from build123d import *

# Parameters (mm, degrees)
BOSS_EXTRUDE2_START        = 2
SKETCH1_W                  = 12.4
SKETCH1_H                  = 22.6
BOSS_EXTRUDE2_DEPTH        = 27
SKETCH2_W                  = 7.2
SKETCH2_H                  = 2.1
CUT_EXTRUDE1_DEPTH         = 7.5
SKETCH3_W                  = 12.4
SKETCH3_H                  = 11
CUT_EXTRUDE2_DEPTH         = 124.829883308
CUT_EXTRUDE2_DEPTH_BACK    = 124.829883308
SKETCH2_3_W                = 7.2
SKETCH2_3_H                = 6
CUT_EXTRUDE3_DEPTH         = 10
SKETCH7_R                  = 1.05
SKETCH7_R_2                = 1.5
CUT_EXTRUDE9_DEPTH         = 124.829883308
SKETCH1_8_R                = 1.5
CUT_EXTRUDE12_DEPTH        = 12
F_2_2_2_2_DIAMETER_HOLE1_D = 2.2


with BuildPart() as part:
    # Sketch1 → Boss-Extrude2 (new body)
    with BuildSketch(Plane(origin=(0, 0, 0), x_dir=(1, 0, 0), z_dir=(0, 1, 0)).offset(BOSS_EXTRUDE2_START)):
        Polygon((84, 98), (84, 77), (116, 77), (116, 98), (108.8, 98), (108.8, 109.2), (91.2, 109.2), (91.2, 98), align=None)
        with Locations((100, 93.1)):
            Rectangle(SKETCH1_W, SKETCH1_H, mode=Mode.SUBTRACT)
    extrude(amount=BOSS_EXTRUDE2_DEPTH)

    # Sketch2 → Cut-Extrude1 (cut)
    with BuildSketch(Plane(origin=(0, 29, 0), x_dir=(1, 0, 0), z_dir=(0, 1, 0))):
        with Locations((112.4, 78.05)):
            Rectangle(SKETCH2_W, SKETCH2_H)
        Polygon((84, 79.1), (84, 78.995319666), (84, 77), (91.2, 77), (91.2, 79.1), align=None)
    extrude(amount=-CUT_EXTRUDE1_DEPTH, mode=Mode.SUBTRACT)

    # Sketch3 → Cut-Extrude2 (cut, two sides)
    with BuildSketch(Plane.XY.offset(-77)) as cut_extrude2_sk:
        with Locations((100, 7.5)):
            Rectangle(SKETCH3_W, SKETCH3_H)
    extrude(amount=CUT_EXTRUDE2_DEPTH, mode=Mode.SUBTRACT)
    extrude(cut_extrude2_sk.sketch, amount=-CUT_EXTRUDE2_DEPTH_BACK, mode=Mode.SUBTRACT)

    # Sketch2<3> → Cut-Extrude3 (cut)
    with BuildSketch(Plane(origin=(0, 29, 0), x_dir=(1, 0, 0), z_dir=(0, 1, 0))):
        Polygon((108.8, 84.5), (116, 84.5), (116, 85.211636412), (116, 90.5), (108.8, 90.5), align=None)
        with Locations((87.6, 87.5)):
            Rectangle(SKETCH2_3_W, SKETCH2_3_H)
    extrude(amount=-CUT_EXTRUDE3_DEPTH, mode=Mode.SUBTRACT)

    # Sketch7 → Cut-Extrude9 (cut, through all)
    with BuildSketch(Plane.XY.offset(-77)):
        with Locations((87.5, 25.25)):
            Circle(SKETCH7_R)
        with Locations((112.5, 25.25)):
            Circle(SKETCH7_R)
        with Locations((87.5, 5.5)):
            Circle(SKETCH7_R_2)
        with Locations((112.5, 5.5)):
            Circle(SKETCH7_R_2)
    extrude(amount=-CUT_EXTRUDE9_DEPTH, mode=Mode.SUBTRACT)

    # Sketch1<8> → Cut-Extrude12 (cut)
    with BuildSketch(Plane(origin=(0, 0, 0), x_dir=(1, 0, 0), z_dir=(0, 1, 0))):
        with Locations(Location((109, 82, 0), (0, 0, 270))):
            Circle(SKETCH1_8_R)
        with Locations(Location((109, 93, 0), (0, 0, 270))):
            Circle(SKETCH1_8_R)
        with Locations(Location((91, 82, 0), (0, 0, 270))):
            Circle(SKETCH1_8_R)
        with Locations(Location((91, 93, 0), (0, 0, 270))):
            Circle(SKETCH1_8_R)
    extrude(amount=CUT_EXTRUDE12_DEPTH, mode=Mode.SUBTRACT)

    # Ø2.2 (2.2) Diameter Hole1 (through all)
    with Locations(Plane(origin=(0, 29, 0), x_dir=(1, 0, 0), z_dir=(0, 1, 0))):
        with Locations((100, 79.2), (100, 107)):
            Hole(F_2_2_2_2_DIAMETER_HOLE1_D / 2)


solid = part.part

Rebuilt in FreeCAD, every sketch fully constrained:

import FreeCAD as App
import Part
import Sketcher
Q = App.Units.Quantity

doc = App.newDocument("Part")
params = doc.addObject("Spreadsheet::Sheet", "Params")
for row, (alias, value) in enumerate([
    ("sketch1_width", "32 mm"),
    ("sketch1_height", "21 mm"),
    ("sketch1_width2", "7.2 mm"),
    ("sketch1_width3", "12.4 mm"),
    ("sketch1_height2", "11.2 mm"),
    ("pad1_length", "27 mm"),
    ("sketch2_width", "7.2 mm"),
    ("sketch2_height", "2.1 mm"),
    ("pocket1_length", "7.5 mm"),
    ("sketch3_height", "11 mm"),
    ("sketch3_width", "12.4 mm"),
    ("sketch4_height", "6 mm"),
    ("sketch4_width", "7.2 mm"),
    ("pocket3_length", "10 mm"),
    ("sketch5_diameter", "3 mm"),
    ("sketch5_diameter2", "2.1 mm"),
    ("sketch6_diameter", "3 mm"),
    ("pocket5_length", "12 mm"),
    ("sketch7_diameter", "2.2 mm"),
    ("hole_diameter", "2.2 mm"),
], start=1):
    params.set(f"A{row}", alias)
    params.set(f"B{row}", "=" + value)
    params.setAlias(f"B{row}", alias)

body = doc.addObject("PartDesign::Body", "Body")

# Sketch on XZ plane
sketch1 = body.newObject("Sketcher::SketchObject", "Sketch")
sketch1.AttachmentSupport = (doc.getObject("XZ_Plane"), [""])
sketch1.MapMode = "FlatFace"
sketch1.AttachmentOffset = App.Placement(App.Vector(0, 0, -2), App.Rotation())
sketch1.addGeometry(Part.LineSegment(App.Vector(84, -98, 0), App.Vector(84, -77, 0)), False)
sketch1.addGeometry(Part.LineSegment(App.Vector(84, -77, 0), App.Vector(116, -77, 0)), False)
sketch1.addGeometry(Part.LineSegment(App.Vector(116, -77, 0), App.Vector(116, -98, 0)), False)
sketch1.addGeometry(Part.LineSegment(App.Vector(116, -98, 0), App.Vector(109, -98, 0)), False)
sketch1.addGeometry(Part.LineSegment(App.Vector(109, -98, 0), App.Vector(109, -109, 0)), False)
sketch1.addGeometry(Part.LineSegment(App.Vector(109, -109, 0), App.Vector(91, -109, 0)), False)
sketch1.addGeometry(Part.LineSegment(App.Vector(91, -109, 0), App.Vector(91, -98, 0)), False)
sketch1.addGeometry(Part.LineSegment(App.Vector(91, -98, 0), App.Vector(84, -98, 0)), False)
sketch1.addGeometry(Part.LineSegment(App.Vector(106, -82, 0), App.Vector(94, -82, 0)), False)
sketch1.addGeometry(Part.LineSegment(App.Vector(94, -82, 0), App.Vector(94, -104, 0)), False)
sketch1.addGeometry(Part.LineSegment(App.Vector(94, -104, 0), App.Vector(106, -104, 0)), False)
sketch1.addGeometry(Part.LineSegment(App.Vector(106, -104, 0), App.Vector(106, -82, 0)), False)
sketch1.addConstraint(Sketcher.Constraint("Coincident", 0, 2, 1, 1))
sketch1.addConstraint(Sketcher.Constraint("Coincident", 1, 2, 2, 1))
sketch1.addConstraint(Sketcher.Constraint("Coincident", 2, 2, 3, 1))
sketch1.addConstraint(Sketcher.Constraint("Coincident", 3, 2, 4, 1))
sketch1.addConstraint(Sketcher.Constraint("Coincident", 4, 2, 5, 1))
sketch1.addConstraint(Sketcher.Constraint("Coincident", 5, 2, 6, 1))
sketch1.addConstraint(Sketcher.Constraint("Coincident", 6, 2, 7, 1))
sketch1.addConstraint(Sketcher.Constraint("Coincident", 7, 2, 0, 1))
sketch1.addConstraint(Sketcher.Constraint("Coincident", 8, 2, 9, 1))
sketch1.addConstraint(Sketcher.Constraint("Coincident", 9, 2, 10, 1))
sketch1.addConstraint(Sketcher.Constraint("Coincident", 10, 2, 11, 1))
sketch1.addConstraint(Sketcher.Constraint("Coincident", 11, 2, 8, 1))
sketch1.addConstraint(Sketcher.Constraint("Vertical", 0))
sketch1.addConstraint(Sketcher.Constraint("Horizontal", 1))
sketch1.addConstraint(Sketcher.Constraint("Vertical", 2))
sketch1.addConstraint(Sketcher.Constraint("Horizontal", 3))
sketch1.addConstraint(Sketcher.Constraint("Vertical", 4))
sketch1.addConstraint(Sketcher.Constraint("Horizontal", 5))
sketch1.addConstraint(Sketcher.Constraint("Vertical", 6))
sketch1.addConstraint(Sketcher.Constraint("Horizontal", 7))
sketch1.addConstraint(Sketcher.Constraint("Horizontal", 8))
sketch1.addConstraint(Sketcher.Constraint("Vertical", 9))
sketch1.addConstraint(Sketcher.Constraint("Horizontal", 10))
sketch1.addConstraint(Sketcher.Constraint("Vertical", 11))
sketch1.addConstraint(Sketcher.Constraint("Horizontal", 3, 2, 6, 2))
sketch1.addConstraint(Sketcher.Constraint("Equal", 3, 7))
sketch1.addConstraint(Sketcher.Constraint("DistanceX", 1, 1, 1, 2, Q("32 mm")))
sketch1.addConstraint(Sketcher.Constraint("DistanceY", 0, 1, 0, 2, Q("21 mm")))
sketch1.addConstraint(Sketcher.Constraint("DistanceX", 3, 2, 3, 1, Q("7.2 mm")))
sketch1.addConstraint(Sketcher.Constraint("DistanceX", 8, 2, 8, 1, Q("12.4 mm")))
sketch1.addConstraint(Sketcher.Constraint("DistanceY", 4, 2, 4, 1, Q("11.2 mm")))
sketch1.addConstraint(Sketcher.Constraint("DistanceY", 9, 2, 9, 1, Q("22.6 mm")))
sketch1.addConstraint(Sketcher.Constraint("DistanceX", -1, 1, 0, 2, Q("84 mm")))
sketch1.addConstraint(Sketcher.Constraint("DistanceY", 0, 2, -1, 1, Q("77 mm")))
sketch1.addConstraint(Sketcher.Constraint("DistanceX", 8, 2, 3, 2, Q("15 mm")))
sketch1.addConstraint(Sketcher.Constraint("DistanceY", 8, 2, -1, 1, Q("81.8 mm")))
sketch1.setExpression("Constraints[26]", "Params.sketch1_width")
sketch1.setExpression("Constraints[27]", "Params.sketch1_height")
sketch1.setExpression("Constraints[28]", "Params.sketch1_width2")
sketch1.setExpression("Constraints[29]", "Params.sketch1_width3")
sketch1.setExpression("Constraints[30]", "Params.sketch1_height2")
pad1 = body.newObject("PartDesign::Pad", "Pad")
pad1.Profile = sketch1
pad1.setExpression("Length", "Params.pad1_length")
pad1.Reversed = True

# Sketch on XZ plane
sketch2 = body.newObject("Sketcher::SketchObject", "Sketch001")
sketch2.AttachmentSupport = (doc.getObject("XZ_Plane"), [""])
sketch2.MapMode = "FlatFace"
sketch2.AttachmentOffset = App.Placement(App.Vector(0, 0, -29), App.Rotation())
sketch2.addGeometry(Part.LineSegment(App.Vector(108.8, -79.1, 0), App.Vector(108.8, -77, 0)), False)
sketch2.addGeometry(Part.LineSegment(App.Vector(108.8, -77, 0), App.Vector(116, -77, 0)), False)
sketch2.addGeometry(Part.LineSegment(App.Vector(116, -77, 0), App.Vector(116, -79.1, 0)), False)
sketch2.addGeometry(Part.LineSegment(App.Vector(116, -79.1, 0), App.Vector(108.8, -79.1, 0)), False)
sketch2.addGeometry(Part.LineSegment(App.Vector(84, -79.1, 0), App.Vector(84, -77, 0)), False)
sketch2.addGeometry(Part.LineSegment(App.Vector(84, -77, 0), App.Vector(91.2, -77, 0)), False)
sketch2.addGeometry(Part.LineSegment(App.Vector(91.2, -77, 0), App.Vector(91.2, -79.1, 0)), False)
sketch2.addGeometry(Part.LineSegment(App.Vector(91.2, -79.1, 0), App.Vector(84, -79.1, 0)), False)
sketch2.addConstraint(Sketcher.Constraint("Coincident", 0, 2, 1, 1))
sketch2.addConstraint(Sketcher.Constraint("Coincident", 1, 2, 2, 1))
sketch2.addConstraint(Sketcher.Constraint("Coincident", 2, 2, 3, 1))
sketch2.addConstraint(Sketcher.Constraint("Coincident", 3, 2, 0, 1))
sketch2.addConstraint(Sketcher.Constraint("Coincident", 4, 2, 5, 1))
sketch2.addConstraint(Sketcher.Constraint("Coincident", 5, 2, 6, 1))
sketch2.addConstraint(Sketcher.Constraint("Coincident", 6, 2, 7, 1))
sketch2.addConstraint(Sketcher.Constraint("Coincident", 7, 2, 4, 1))
sketch2.addConstraint(Sketcher.Constraint("Vertical", 0))
sketch2.addConstraint(Sketcher.Constraint("Horizontal", 1))
sketch2.addConstraint(Sketcher.Constraint("Vertical", 2))
sketch2.addConstraint(Sketcher.Constraint("Horizontal", 3))
sketch2.addConstraint(Sketcher.Constraint("Vertical", 4))
sketch2.addConstraint(Sketcher.Constraint("Horizontal", 5))
sketch2.addConstraint(Sketcher.Constraint("Vertical", 6))
sketch2.addConstraint(Sketcher.Constraint("Horizontal", 7))
sketch2.addConstraint(Sketcher.Constraint("Horizontal", 1, 2, 4, 2))
sketch2.addConstraint(Sketcher.Constraint("Horizontal", 3, 2, 6, 2))
sketch2.addConstraint(Sketcher.Constraint("Equal", 3, 5))
sketch2.addConstraint(Sketcher.Constraint("DistanceX", 1, 1, 1, 2, Q("7.2 mm")))
sketch2.addConstraint(Sketcher.Constraint("DistanceY", 0, 1, 0, 2, Q("2.1 mm")))
sketch2.addConstraint(Sketcher.Constraint("DistanceY", 0, 2, -1, 1, Q("77 mm")))
sketch2.addConstraint(Sketcher.Constraint("DistanceX", -1, 1, 1, 2, Q("116 mm")))
sketch2.addConstraint(Sketcher.Constraint("DistanceX", -1, 1, 4, 2, Q("84 mm")))
sketch2.setExpression("Constraints[19]", "Params.sketch2_width")
sketch2.setExpression("Constraints[20]", "Params.sketch2_height")
pocket1 = body.newObject("PartDesign::Pocket", "Pocket")
pocket1.Profile = sketch2
pocket1.setExpression("Length", "Params.pocket1_length")
pocket1.Reversed = True

# Sketch on XY plane
sketch3 = body.newObject("Sketcher::SketchObject", "Sketch002")
sketch3.AttachmentSupport = (doc.getObject("XY_Plane"), [""])
sketch3.MapMode = "FlatFace"
sketch3.AttachmentOffset = App.Placement(App.Vector(0, 0, -77), App.Rotation())
sketch3.addGeometry(Part.LineSegment(App.Vector(94, 13, 0), App.Vector(94, 2, 0)), False)
sketch3.addGeometry(Part.LineSegment(App.Vector(94, 2, 0), App.Vector(106, 2, 0)), False)
sketch3.addGeometry(Part.LineSegment(App.Vector(106, 2, 0), App.Vector(106, 13, 0)), False)
sketch3.addGeometry(Part.LineSegment(App.Vector(106, 13, 0), App.Vector(94, 13, 0)), False)
sketch3.addConstraint(Sketcher.Constraint("Coincident", 0, 2, 1, 1))
sketch3.addConstraint(Sketcher.Constraint("Coincident", 1, 2, 2, 1))
sketch3.addConstraint(Sketcher.Constraint("Coincident", 2, 2, 3, 1))
sketch3.addConstraint(Sketcher.Constraint("Coincident", 3, 2, 0, 1))
sketch3.addConstraint(Sketcher.Constraint("Vertical", 0))
sketch3.addConstraint(Sketcher.Constraint("Horizontal", 1))
sketch3.addConstraint(Sketcher.Constraint("Vertical", 2))
sketch3.addConstraint(Sketcher.Constraint("Horizontal", 3))
sketch3.addConstraint(Sketcher.Constraint("DistanceY", 0, 2, 0, 1, Q("11 mm")))
sketch3.addConstraint(Sketcher.Constraint("DistanceX", 1, 1, 1, 2, Q("12.4 mm")))
sketch3.addConstraint(Sketcher.Constraint("DistanceY", -1, 1, 0, 2, Q("2 mm")))
sketch3.addConstraint(Sketcher.Constraint("DistanceX", -1, 1, 0, 2, Q("93.8 mm")))
sketch3.setExpression("Constraints[8]", "Params.sketch3_height")
sketch3.setExpression("Constraints[9]", "Params.sketch3_width")
pocket2 = body.newObject("PartDesign::Pocket", "Pocket001")
pocket2.Profile = sketch3
pocket2.Type = "ThroughAll"
pocket2.Midplane = True

# Sketch on XZ plane
sketch4 = body.newObject("Sketcher::SketchObject", "Sketch003")
sketch4.AttachmentSupport = (doc.getObject("XZ_Plane"), [""])
sketch4.MapMode = "FlatFace"
sketch4.AttachmentOffset = App.Placement(App.Vector(0, 0, -29), App.Rotation())
sketch4.addGeometry(Part.LineSegment(App.Vector(109, -84, 0), App.Vector(116, -84, 0)), False)
sketch4.addGeometry(Part.LineSegment(App.Vector(116, -84, 0), App.Vector(116, -90, 0)), False)
sketch4.addGeometry(Part.LineSegment(App.Vector(116, -90, 0), App.Vector(109, -90, 0)), False)
sketch4.addGeometry(Part.LineSegment(App.Vector(109, -90, 0), App.Vector(109, -84, 0)), False)
sketch4.addGeometry(Part.LineSegment(App.Vector(84, -90, 0), App.Vector(84, -84, 0)), False)
sketch4.addGeometry(Part.LineSegment(App.Vector(84, -84, 0), App.Vector(91, -84, 0)), False)
sketch4.addGeometry(Part.LineSegment(App.Vector(91, -84, 0), App.Vector(91, -90, 0)), False)
sketch4.addGeometry(Part.LineSegment(App.Vector(91, -90, 0), App.Vector(84, -90, 0)), False)
sketch4.addConstraint(Sketcher.Constraint("Coincident", 0, 2, 1, 1))
sketch4.addConstraint(Sketcher.Constraint("Coincident", 1, 2, 2, 1))
sketch4.addConstraint(Sketcher.Constraint("Coincident", 2, 2, 3, 1))
sketch4.addConstraint(Sketcher.Constraint("Coincident", 3, 2, 0, 1))
sketch4.addConstraint(Sketcher.Constraint("Coincident", 4, 2, 5, 1))
sketch4.addConstraint(Sketcher.Constraint("Coincident", 5, 2, 6, 1))
sketch4.addConstraint(Sketcher.Constraint("Coincident", 6, 2, 7, 1))
sketch4.addConstraint(Sketcher.Constraint("Coincident", 7, 2, 4, 1))
sketch4.addConstraint(Sketcher.Constraint("Horizontal", 0))
sketch4.addConstraint(Sketcher.Constraint("Vertical", 1))
sketch4.addConstraint(Sketcher.Constraint("Horizontal", 2))
sketch4.addConstraint(Sketcher.Constraint("Vertical", 3))
sketch4.addConstraint(Sketcher.Constraint("Vertical", 4))
sketch4.addConstraint(Sketcher.Constraint("Horizontal", 5))
sketch4.addConstraint(Sketcher.Constraint("Vertical", 6))
sketch4.addConstraint(Sketcher.Constraint("Horizontal", 7))
sketch4.addConstraint(Sketcher.Constraint("Horizontal", 3, 2, 4, 2))
sketch4.addConstraint(Sketcher.Constraint("Horizontal", 2, 2, 6, 2))
sketch4.addConstraint(Sketcher.Constraint("Equal", 2, 5))
sketch4.addConstraint(Sketcher.Constraint("DistanceY", 1, 2, 1, 1, Q("6 mm")))
sketch4.addConstraint(Sketcher.Constraint("DistanceX", 0, 1, 0, 2, Q("7.2 mm")))
sketch4.addConstraint(Sketcher.Constraint("DistanceX", -1, 1, 0, 2, Q("116 mm")))
sketch4.addConstraint(Sketcher.Constraint("DistanceX", -1, 1, 4, 2, Q("84 mm")))
sketch4.addConstraint(Sketcher.Constraint("DistanceY", 0, 2, -1, 1, Q("84.5 mm")))
sketch4.setExpression("Constraints[19]", "Params.sketch4_height")
sketch4.setExpression("Constraints[20]", "Params.sketch4_width")
pocket3 = body.newObject("PartDesign::Pocket", "Pocket002")
pocket3.Profile = sketch4
pocket3.setExpression("Length", "Params.pocket3_length")
pocket3.Reversed = True

# Sketch on XY plane
sketch5 = body.newObject("Sketcher::SketchObject", "Sketch004")
sketch5.AttachmentSupport = (doc.getObject("XY_Plane"), [""])
sketch5.MapMode = "FlatFace"
sketch5.AttachmentOffset = App.Placement(App.Vector(0, 0, -77), App.Rotation())
sketch5.addGeometry(Part.Circle(App.Vector(87.5, 25.2, 0), App.Vector(0, 0, 1), 1.1), False)
sketch5.addGeometry(Part.Circle(App.Vector(112.5, 25.2, 0), App.Vector(0, 0, 1), 1.1), False)
sketch5.addGeometry(Part.Circle(App.Vector(87.5, 5.5, 0), App.Vector(0, 0, 1), 1.5), False)
sketch5.addGeometry(Part.Circle(App.Vector(112.5, 5.5, 0), App.Vector(0, 0, 1), 1.5), False)
sketch5.addConstraint(Sketcher.Constraint("Equal", 0, 1))
sketch5.addConstraint(Sketcher.Constraint("Equal", 2, 3))
sketch5.addConstraint(Sketcher.Constraint("Horizontal", 0, 3, 1, 3))
sketch5.addConstraint(Sketcher.Constraint("Horizontal", 2, 3, 3, 3))
sketch5.addConstraint(Sketcher.Constraint("Vertical", 0, 3, 2, 3))
sketch5.addConstraint(Sketcher.Constraint("Vertical", 1, 3, 3, 3))
sketch5.addConstraint(Sketcher.Constraint("Diameter", 2, Q("3 mm")))
sketch5.addConstraint(Sketcher.Constraint("Diameter", 0, Q("2.1 mm")))
sketch5.addConstraint(Sketcher.Constraint("DistanceX", 0, 3, 1, 3, Q("25 mm")))
sketch5.addConstraint(Sketcher.Constraint("DistanceX", -1, 1, 0, 3, Q("87.5 mm")))
sketch5.addConstraint(Sketcher.Constraint("DistanceY", -1, 1, 2, 3, Q("5.5 mm")))
sketch5.addConstraint(Sketcher.Constraint("DistanceY", -1, 1, 0, 3, Q("25.25 mm")))
sketch5.setExpression("Constraints[6]", "Params.sketch5_diameter")
sketch5.setExpression("Constraints[7]", "Params.sketch5_diameter2")
pocket4 = body.newObject("PartDesign::Pocket", "Pocket003")
pocket4.Profile = sketch5
pocket4.Type = "ThroughAll"

# Sketch on XZ plane
sketch6 = body.newObject("Sketcher::SketchObject", "Sketch005")
sketch6.AttachmentSupport = (doc.getObject("XZ_Plane"), [""])
sketch6.MapMode = "FlatFace"
sketch6.addGeometry(Part.Circle(App.Vector(109, -82, 0), App.Vector(0, 0, 1), 1.5), False)
sketch6.addGeometry(Part.Circle(App.Vector(109, -93, 0), App.Vector(0, 0, 1), 1.5), False)
sketch6.addGeometry(Part.Circle(App.Vector(91, -82, 0), App.Vector(0, 0, 1), 1.5), False)
sketch6.addGeometry(Part.Circle(App.Vector(91, -93, 0), App.Vector(0, 0, 1), 1.5), False)
sketch6.addConstraint(Sketcher.Constraint("Equal", 0, 1))
sketch6.addConstraint(Sketcher.Constraint("Equal", 1, 2))
sketch6.addConstraint(Sketcher.Constraint("Equal", 2, 3))
sketch6.addConstraint(Sketcher.Constraint("Horizontal", 0, 3, 2, 3))
sketch6.addConstraint(Sketcher.Constraint("Horizontal", 1, 3, 3, 3))
sketch6.addConstraint(Sketcher.Constraint("Vertical", 0, 3, 1, 3))
sketch6.addConstraint(Sketcher.Constraint("Vertical", 2, 3, 3, 3))
sketch6.addConstraint(Sketcher.Constraint("Diameter", 0, Q("3 mm")))
sketch6.addConstraint(Sketcher.Constraint("DistanceX", -1, 1, 0, 3, Q("109 mm")))
sketch6.addConstraint(Sketcher.Constraint("DistanceY", 0, 3, -1, 1, Q("82 mm")))
sketch6.addConstraint(Sketcher.Constraint("DistanceY", 1, 3, -1, 1, Q("93 mm")))
sketch6.addConstraint(Sketcher.Constraint("DistanceX", -1, 1, 2, 3, Q("91 mm")))
sketch6.setExpression("Constraints[7]", "Params.sketch6_diameter")
pocket5 = body.newObject("PartDesign::Pocket", "Pocket004")
pocket5.Profile = sketch6
pocket5.setExpression("Length", "Params.pocket5_length")

# Sketch on XZ plane
sketch7 = body.newObject("Sketcher::SketchObject", "Sketch006")
sketch7.AttachmentSupport = (doc.getObject("XZ_Plane"), [""])
sketch7.MapMode = "FlatFace"
sketch7.AttachmentOffset = App.Placement(App.Vector(0, 0, -29), App.Rotation())
sketch7.addGeometry(Part.Circle(App.Vector(100, -79.2, 0), App.Vector(0, 0, 1), 1.1), False)
sketch7.addGeometry(Part.Circle(App.Vector(100, -107, 0), App.Vector(0, 0, 1), 1.1), False)
sketch7.addConstraint(Sketcher.Constraint("Equal", 0, 1))
sketch7.addConstraint(Sketcher.Constraint("Vertical", 0, 3, 1, 3))
sketch7.addConstraint(Sketcher.Constraint("Diameter", 0, Q("2.2 mm")))
sketch7.addConstraint(Sketcher.Constraint("DistanceX", -1, 1, 0, 3, Q("100 mm")))
sketch7.addConstraint(Sketcher.Constraint("DistanceY", 1, 3, -1, 1, Q("107 mm")))
sketch7.addConstraint(Sketcher.Constraint("DistanceY", 0, 3, -1, 1, Q("79.2 mm")))
sketch7.setExpression("Constraints[2]", "Params.sketch7_diameter")
doc.recompute()
hole = body.newObject("PartDesign::Hole", "Hole")
hole.Profile = sketch7
hole.ThreadType = "None"
hole.setExpression("Diameter", "Params.hole_diameter")
hole.DepthType = "ThroughAll"
hole.Reversed = True

doc.recompute()
